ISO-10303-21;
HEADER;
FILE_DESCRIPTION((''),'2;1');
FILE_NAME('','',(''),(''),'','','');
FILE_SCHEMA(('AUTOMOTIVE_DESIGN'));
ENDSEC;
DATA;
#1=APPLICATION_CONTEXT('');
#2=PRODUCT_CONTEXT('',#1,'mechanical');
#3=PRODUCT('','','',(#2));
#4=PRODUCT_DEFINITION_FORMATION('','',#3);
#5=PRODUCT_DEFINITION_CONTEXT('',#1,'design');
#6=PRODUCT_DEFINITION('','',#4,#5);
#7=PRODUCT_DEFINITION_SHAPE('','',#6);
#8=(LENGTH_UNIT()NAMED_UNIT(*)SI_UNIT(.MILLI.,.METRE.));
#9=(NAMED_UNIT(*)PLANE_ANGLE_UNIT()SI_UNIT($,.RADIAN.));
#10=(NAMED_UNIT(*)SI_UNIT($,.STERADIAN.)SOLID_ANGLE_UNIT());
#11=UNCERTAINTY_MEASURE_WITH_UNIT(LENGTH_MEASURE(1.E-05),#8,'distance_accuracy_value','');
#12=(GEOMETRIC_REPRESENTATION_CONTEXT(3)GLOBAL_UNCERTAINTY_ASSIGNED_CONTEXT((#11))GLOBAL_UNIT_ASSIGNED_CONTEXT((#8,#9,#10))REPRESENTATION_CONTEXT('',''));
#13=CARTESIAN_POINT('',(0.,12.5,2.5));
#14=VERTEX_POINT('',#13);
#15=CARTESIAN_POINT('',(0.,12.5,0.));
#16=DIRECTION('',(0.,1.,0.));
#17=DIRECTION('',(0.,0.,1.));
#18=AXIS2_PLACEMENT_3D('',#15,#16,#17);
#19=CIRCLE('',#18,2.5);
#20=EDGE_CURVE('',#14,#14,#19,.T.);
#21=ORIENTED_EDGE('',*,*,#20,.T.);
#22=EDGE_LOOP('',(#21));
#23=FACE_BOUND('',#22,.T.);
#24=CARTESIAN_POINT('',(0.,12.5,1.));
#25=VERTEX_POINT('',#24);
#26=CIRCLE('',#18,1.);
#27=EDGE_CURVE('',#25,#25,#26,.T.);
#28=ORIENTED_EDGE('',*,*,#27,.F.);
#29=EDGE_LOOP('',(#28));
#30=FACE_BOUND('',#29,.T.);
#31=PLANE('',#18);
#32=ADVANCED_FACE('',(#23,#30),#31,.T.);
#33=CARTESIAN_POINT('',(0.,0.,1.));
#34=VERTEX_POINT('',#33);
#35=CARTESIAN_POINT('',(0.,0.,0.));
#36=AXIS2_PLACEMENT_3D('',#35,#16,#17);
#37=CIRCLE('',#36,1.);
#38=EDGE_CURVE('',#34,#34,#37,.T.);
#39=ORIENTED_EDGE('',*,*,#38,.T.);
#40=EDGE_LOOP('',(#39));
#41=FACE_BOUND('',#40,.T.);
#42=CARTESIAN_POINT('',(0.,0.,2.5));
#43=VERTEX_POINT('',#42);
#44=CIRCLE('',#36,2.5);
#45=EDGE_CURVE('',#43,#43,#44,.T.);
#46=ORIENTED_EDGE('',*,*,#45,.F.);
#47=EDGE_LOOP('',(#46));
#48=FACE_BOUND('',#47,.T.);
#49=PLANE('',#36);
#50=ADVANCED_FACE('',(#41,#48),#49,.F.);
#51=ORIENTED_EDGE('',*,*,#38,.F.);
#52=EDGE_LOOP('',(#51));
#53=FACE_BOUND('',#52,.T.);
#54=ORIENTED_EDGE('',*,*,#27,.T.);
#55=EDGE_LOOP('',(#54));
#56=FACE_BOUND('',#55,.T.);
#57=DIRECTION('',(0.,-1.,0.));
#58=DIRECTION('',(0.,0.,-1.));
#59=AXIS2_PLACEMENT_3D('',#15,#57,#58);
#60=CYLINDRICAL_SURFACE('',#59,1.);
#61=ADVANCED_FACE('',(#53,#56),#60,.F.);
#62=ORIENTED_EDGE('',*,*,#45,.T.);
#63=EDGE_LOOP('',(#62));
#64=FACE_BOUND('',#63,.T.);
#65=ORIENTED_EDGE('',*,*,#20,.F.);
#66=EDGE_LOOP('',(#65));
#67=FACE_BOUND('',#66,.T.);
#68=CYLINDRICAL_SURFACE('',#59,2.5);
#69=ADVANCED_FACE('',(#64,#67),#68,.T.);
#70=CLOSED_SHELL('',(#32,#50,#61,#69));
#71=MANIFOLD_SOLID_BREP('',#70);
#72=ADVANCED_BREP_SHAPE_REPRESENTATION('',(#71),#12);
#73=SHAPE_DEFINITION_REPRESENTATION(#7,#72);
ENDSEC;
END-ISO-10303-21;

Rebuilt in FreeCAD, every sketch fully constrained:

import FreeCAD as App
import Part
import Sketcher
from FreeCAD import Vector

doc = App.newDocument("Part")
body = doc.addObject("PartDesign::Body", "Body")

sketch1 = body.newObject("Sketcher::SketchObject", "Sketch")
sketch1.AttachmentSupport = (doc.getObject("XZ_Plane"), [""])
sketch1.MapMode = "FlatFace"
sketch1.addGeometry(Part.Circle(Vector(0, 0, 0), Vector(0, 0, 1), 2.5), False)
sketch1.addGeometry(Part.Circle(Vector(0, 0, 0), Vector(0, 0, 1), 1), False)
sketch1.addConstraint(Sketcher.Constraint("Coincident", 0, 3, -1, 1))
sketch1.addConstraint(Sketcher.Constraint("Coincident", 1, 3, -1, 1))
sketch1.addConstraint(Sketcher.Constraint("Diameter", 0, 5.0))
sketch1.addConstraint(Sketcher.Constraint("Diameter", 1, 2.0))
pad1 = body.newObject("PartDesign::Pad", "Pad")
pad1.Profile = sketch1
pad1.Length = 12.5
pad1.Reversed = True

doc.recompute()
